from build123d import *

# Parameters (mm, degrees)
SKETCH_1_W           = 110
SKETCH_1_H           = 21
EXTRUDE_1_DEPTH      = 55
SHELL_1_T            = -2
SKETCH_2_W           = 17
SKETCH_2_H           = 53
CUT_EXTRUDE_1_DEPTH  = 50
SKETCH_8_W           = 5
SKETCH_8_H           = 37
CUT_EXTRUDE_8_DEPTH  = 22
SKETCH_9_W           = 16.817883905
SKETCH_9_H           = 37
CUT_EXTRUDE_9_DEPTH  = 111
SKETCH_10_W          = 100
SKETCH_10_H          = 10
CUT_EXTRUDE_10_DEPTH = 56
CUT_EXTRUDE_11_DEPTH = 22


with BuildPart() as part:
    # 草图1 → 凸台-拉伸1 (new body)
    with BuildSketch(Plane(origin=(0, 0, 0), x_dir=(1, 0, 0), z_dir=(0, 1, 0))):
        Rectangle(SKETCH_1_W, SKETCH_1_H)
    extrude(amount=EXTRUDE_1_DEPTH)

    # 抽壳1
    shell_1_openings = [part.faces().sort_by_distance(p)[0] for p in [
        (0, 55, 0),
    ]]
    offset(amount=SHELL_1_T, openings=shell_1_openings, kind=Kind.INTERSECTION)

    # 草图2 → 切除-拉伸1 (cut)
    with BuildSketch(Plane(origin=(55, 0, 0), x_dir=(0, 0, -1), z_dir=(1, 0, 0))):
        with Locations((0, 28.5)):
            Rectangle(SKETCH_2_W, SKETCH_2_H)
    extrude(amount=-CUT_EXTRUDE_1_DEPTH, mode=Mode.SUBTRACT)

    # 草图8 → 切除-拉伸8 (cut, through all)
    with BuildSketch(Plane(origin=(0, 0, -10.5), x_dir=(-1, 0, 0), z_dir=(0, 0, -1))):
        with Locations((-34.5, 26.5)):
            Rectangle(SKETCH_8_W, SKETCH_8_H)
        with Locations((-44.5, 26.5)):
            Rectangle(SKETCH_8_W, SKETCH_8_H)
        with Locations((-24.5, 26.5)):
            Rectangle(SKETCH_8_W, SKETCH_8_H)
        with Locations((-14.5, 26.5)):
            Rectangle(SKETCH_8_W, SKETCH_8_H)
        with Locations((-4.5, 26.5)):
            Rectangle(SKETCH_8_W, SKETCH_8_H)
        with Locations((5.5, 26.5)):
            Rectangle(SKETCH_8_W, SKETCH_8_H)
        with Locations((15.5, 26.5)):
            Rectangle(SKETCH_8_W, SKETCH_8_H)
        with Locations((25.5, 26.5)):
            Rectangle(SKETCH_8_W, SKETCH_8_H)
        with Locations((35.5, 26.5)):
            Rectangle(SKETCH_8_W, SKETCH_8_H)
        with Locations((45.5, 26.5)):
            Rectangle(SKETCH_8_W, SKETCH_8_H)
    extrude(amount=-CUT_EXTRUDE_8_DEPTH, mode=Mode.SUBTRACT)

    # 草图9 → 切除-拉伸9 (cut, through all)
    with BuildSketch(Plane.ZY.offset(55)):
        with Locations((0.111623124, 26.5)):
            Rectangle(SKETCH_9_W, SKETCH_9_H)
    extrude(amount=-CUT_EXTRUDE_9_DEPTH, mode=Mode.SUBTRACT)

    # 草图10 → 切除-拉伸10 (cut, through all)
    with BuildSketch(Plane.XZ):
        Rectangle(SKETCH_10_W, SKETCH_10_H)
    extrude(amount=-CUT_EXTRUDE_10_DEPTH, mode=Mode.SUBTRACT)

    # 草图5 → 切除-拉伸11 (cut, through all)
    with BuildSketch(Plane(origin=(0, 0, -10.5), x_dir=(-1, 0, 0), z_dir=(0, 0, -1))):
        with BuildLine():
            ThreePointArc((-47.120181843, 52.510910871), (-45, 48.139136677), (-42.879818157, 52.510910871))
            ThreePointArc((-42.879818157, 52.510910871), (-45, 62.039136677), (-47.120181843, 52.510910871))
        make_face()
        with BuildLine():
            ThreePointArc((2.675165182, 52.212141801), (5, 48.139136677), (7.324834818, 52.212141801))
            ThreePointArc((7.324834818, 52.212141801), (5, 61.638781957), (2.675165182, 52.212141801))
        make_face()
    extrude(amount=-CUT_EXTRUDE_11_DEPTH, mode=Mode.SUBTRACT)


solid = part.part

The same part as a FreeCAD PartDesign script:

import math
import FreeCAD as App
import Part
import Sketcher


def faces_at(feature, points):
    """Names of the faces that lie closest to the given points."""
    faces = feature.Shape.Faces
    near = lambda p: min(range(len(faces)), key=lambda i: faces[i].distToShape(Part.Vertex(*p))[0])
    return sorted({f"Face{near(p) + 1}" for p in points})

doc = App.newDocument("Part")
params = doc.addObject("Spreadsheet::Sheet", "Params")
for row, (alias, value) in enumerate([
    ("sketch1_width", "110 mm"),
    ("sketch1_height", "21 mm"),
    ("pad1_length", "55 mm"),
    ("thickness_wall", "2 mm"),
    ("sketch2_width", "53 mm"),
    ("sketch2_height", "17 mm"),
    ("pocket1_length", "50 mm"),
    ("sketch3_width", "5 mm"),
    ("sketch3_height", "37 mm"),
    ("sketch4_width", "37 mm"),
    ("sketch5_width", "100 mm"),
    ("sketch5_height", "10 mm"),
    ("sketch6_radius", "5 mm"),
    ("sketch6_radius2", "2.7 mm"),
], start=1):
    params.set(f"A{row}", alias)
    params.set(f"B{row}", "=" + value)
    params.setAlias(f"B{row}", alias)

body = doc.addObject("PartDesign::Body", "Body")

sketch1 = body.newObject("Sketcher::SketchObject", "Sketch")
sketch1.AttachmentSupport = (doc.getObject("XZ_Plane"), [""])
sketch1.MapMode = "FlatFace"
sketch1.addGeometry([
    Part.LineSegment(App.Vector(-55, -10, 0), App.Vector(-55, 10, 0)),
    Part.LineSegment(App.Vector(-55, 10, 0), App.Vector(55, 10, 0)),
    Part.LineSegment(App.Vector(55, 10, 0), App.Vector(55, -10, 0)),
    Part.LineSegment(App.Vector(55, -10, 0), App.Vector(-55, -10, 0)),
], False)
sketch1.addConstraint([
    Sketcher.Constraint("Coincident", 0, 2, 1, 1),
    Sketcher.Constraint("Coincident", 1, 2, 2, 1),
    Sketcher.Constraint("Coincident", 2, 2, 3, 1),
    Sketcher.Constraint("Coincident", 3, 2, 0, 1),
    Sketcher.Constraint("Vertical", 0),
    Sketcher.Constraint("Horizontal", 1),
    Sketcher.Constraint("Vertical", 2),
    Sketcher.Constraint("Horizontal", 3),
    Sketcher.Constraint("Symmetric", 0, 2, 2, 2, -1, 1),
    Sketcher.Constraint("DistanceX", 1, 1, 1, 2, 110.0),
    Sketcher.Constraint("DistanceY", 0, 1, 0, 2, 21.0),
])
sketch1.setExpression("Constraints[9]", "Params.sketch1_width")
sketch1.setExpression("Constraints[10]", "Params.sketch1_height")
pad1 = body.newObject("PartDesign::Pad", "Pad")
pad1.Profile = sketch1
pad1.setExpression("Length", "Params.pad1_length")
pad1.Reversed = True
doc.recompute()

thickness = body.newObject("PartDesign::Thickness", "Thickness")
thickness.Base = (pad1, faces_at(pad1, [(0, 55, 0)]))
thickness.setExpression("Value", "Params.thickness_wall")
thickness.Reversed = True
thickness.Join = "Intersection"

sketch2 = body.newObject("Sketcher::SketchObject", "Sketch001")
sketch2.AttachmentSupport = (doc.getObject("YZ_Plane"), [""])
sketch2.MapMode = "FlatFace"
sketch2.AttachmentOffset = App.Placement(App.Vector(0, 0, 55), App.Rotation())
sketch2.addGeometry([
    Part.LineSegment(App.Vector(55, 8, 0), App.Vector(2, 8, 0)),
    Part.LineSegment(App.Vector(2, 8, 0), App.Vector(2, -8, 0)),
    Part.LineSegment(App.Vector(2, -8, 0), App.Vector(55, -8, 0)),
    Part.LineSegment(App.Vector(55, -8, 0), App.Vector(55, 8, 0)),
], False)
sketch2.addConstraint([
    Sketcher.Constraint("Coincident", 0, 2, 1, 1),
    Sketcher.Constraint("Coincident", 1, 2, 2, 1),
    Sketcher.Constraint("Coincident", 2, 2, 3, 1),
    Sketcher.Constraint("Coincident", 3, 2, 0, 1),
    Sketcher.Constraint("Horizontal", 0),
    Sketcher.Constraint("Vertical", 1),
    Sketcher.Constraint("Horizontal", 2),
    Sketcher.Constraint("Vertical", 3),
    Sketcher.Constraint("DistanceX", 0, 2, 0, 1, 53.0),
    Sketcher.Constraint("DistanceY", 1, 2, 1, 1, 17.0),
    Sketcher.Constraint("DistanceX", -1, 1, 0, 2, 2.0),
    Sketcher.Constraint("DistanceY", -1, 1, 0, 2, 8.5),
])
sketch2.setExpression("Constraints[8]", "Params.sketch2_width")
sketch2.setExpression("Constraints[9]", "Params.sketch2_height")
pocket1 = body.newObject("PartDesign::Pocket", "Pocket")
pocket1.Profile = sketch2
pocket1.setExpression("Length", "Params.pocket1_length")

sketch3 = body.newObject("Sketcher::SketchObject", "Sketch002")
sketch3.AttachmentSupport = (doc.getObject("XY_Plane"), [""])
sketch3.MapMode = "FlatFace"
sketch3.AttachmentOffset = App.Placement(App.Vector(0, 0, -10.5), App.Rotation())
sketch3.addGeometry([
    Part.LineSegment(App.Vector(37, 45, 0), App.Vector(37, 8, 0)),
    Part.LineSegment(App.Vector(37, 8, 0), App.Vector(32, 8, 0)),
    Part.LineSegment(App.Vector(32, 8, 0), App.Vector(32, 45, 0)),
    Part.LineSegment(App.Vector(32, 45, 0), App.Vector(37, 45, 0)),
    Part.LineSegment(App.Vector(47, 45, 0), App.Vector(47, 8, 0)),
    Part.LineSegment(App.Vector(47, 8, 0), App.Vector(42, 8, 0)),
    Part.LineSegment(App.Vector(42, 8, 0), App.Vector(42, 45, 0)),
    Part.LineSegment(App.Vector(42, 45, 0), App.Vector(47, 45, 0)),
    Part.LineSegment(App.Vector(27, 45, 0), App.Vector(27, 8, 0)),
    Part.LineSegment(App.Vector(27, 8, 0), App.Vector(22, 8, 0)),
    Part.LineSegment(App.Vector(22, 8, 0), App.Vector(22, 45, 0)),
    Part.LineSegment(App.Vector(22, 45, 0), App.Vector(27, 45, 0)),
    Part.LineSegment(App.Vector(17, 45, 0), App.Vector(17, 8, 0)),
    Part.LineSegment(App.Vector(17, 8, 0), App.Vector(12, 8, 0)),
    Part.LineSegment(App.Vector(12, 8, 0), App.Vector(12, 45, 0)),
    Part.LineSegment(App.Vector(12, 45, 0), App.Vector(17, 45, 0)),
    Part.LineSegment(App.Vector(7, 45, 0), App.Vector(7, 8, 0)),
    Part.LineSegment(App.Vector(7, 8, 0), App.Vector(2, 8, 0)),
    Part.LineSegment(App.Vector(2, 8, 0), App.Vector(2, 45, 0)),
    Part.LineSegment(App.Vector(2, 45, 0), App.Vector(7, 45, 0)),
    Part.LineSegment(App.Vector(-3, 45, 0), App.Vector(-3, 8, 0)),
    Part.LineSegment(App.Vector(-3, 8, 0), App.Vector(-8, 8, 0)),
    Part.LineSegment(App.Vector(-8, 8, 0), App.Vector(-8, 45, 0)),
    Part.LineSegment(App.Vector(-8, 45, 0), App.Vector(-3, 45, 0)),
    Part.LineSegment(App.Vector(-13, 45, 0), App.Vector(-13, 8, 0)),
    Part.LineSegment(App.Vector(-13, 8, 0), App.Vector(-18, 8, 0)),
    Part.LineSegment(App.Vector(-18, 8, 0), App.Vector(-18, 45, 0)),
    Part.LineSegment(App.Vector(-18, 45, 0), App.Vector(-13, 45, 0)),
    Part.LineSegment(App.Vector(-23, 45, 0), App.Vector(-23, 8, 0)),
    Part.LineSegment(App.Vector(-23, 8, 0), App.Vector(-28, 8, 0)),
    Part.LineSegment(App.Vector(-28, 8, 0), App.Vector(-28, 45, 0)),
    Part.LineSegment(App.Vector(-28, 45, 0), App.Vector(-23, 45, 0)),
    Part.LineSegment(App.Vector(-33, 45, 0), App.Vector(-33, 8, 0)),
    Part.LineSegment(App.Vector(-33, 8, 0), App.Vector(-38, 8, 0)),
    Part.LineSegment(App.Vector(-38, 8, 0), App.Vector(-38, 45, 0)),
    Part.LineSegment(App.Vector(-38, 45, 0), App.Vector(-33, 45, 0)),
    Part.LineSegment(App.Vector(-43, 45, 0), App.Vector(-43, 8, 0)),
    Part.LineSegment(App.Vector(-43, 8, 0), App.Vector(-48, 8, 0)),
    Part.LineSegment(App.Vector(-48, 8, 0), App.Vector(-48, 45, 0)),
    Part.LineSegment(App.Vector(-48, 45, 0), App.Vector(-43, 45, 0)),
], False)
sketch3.addConstraint([
    Sketcher.Constraint("Coincident", 0, 2, 1, 1),
    Sketcher.Constraint("Coincident", 1, 2, 2, 1),
    Sketcher.Constraint("Coincident", 2, 2, 3, 1),
    Sketcher.Constraint("Coincident", 3, 2, 0, 1),
    Sketcher.Constraint("Coincident", 4, 2, 5, 1),
    Sketcher.Constraint("Coincident", 5, 2, 6, 1),
    Sketcher.Constraint("Coincident", 6, 2, 7, 1),
    Sketcher.Constraint("Coincident", 7, 2, 4, 1),
    Sketcher.Constraint("Coincident", 8, 2, 9, 1),
    Sketcher.Constraint("Coincident", 9, 2, 10, 1),
    Sketcher.Constraint("Coincident", 10, 2, 11, 1),
    Sketcher.Constraint("Coincident", 11, 2, 8, 1),
    Sketcher.Constraint("Coincident", 12, 2, 13, 1),
    Sketcher.Constraint("Coincident", 13, 2, 14, 1),
    Sketcher.Constraint("Coincident", 14, 2, 15, 1),
    Sketcher.Constraint("Coincident", 15, 2, 12, 1),
    Sketcher.Constraint("Coincident", 16, 2, 17, 1),
    Sketcher.Constraint("Coincident", 17, 2, 18, 1),
    Sketcher.Constraint("Coincident", 18, 2, 19, 1),
    Sketcher.Constraint("Coincident", 19, 2, 16, 1),
    Sketcher.Constraint("Coincident", 20, 2, 21, 1),
    Sketcher.Constraint("Coincident", 21, 2, 22, 1),
    Sketcher.Constraint("Coincident", 22, 2, 23, 1),
    Sketcher.Constraint("Coincident", 23, 2, 20, 1),
    Sketcher.Constraint("Coincident", 24, 2, 25, 1),
    Sketcher.Constraint("Coincident", 25, 2, 26, 1),
    Sketcher.Constraint("Coincident", 26, 2, 27, 1),
    Sketcher.Constraint("Coincident", 27, 2, 24, 1),
    Sketcher.Constraint("Coincident", 28, 2, 29, 1),
    Sketcher.Constraint("Coincident", 29, 2, 30, 1),
    Sketcher.Constraint("Coincident", 30, 2, 31, 1),
    Sketcher.Constraint("Coincident", 31, 2, 28, 1),
    Sketcher.Constraint("Coincident", 32, 2, 33, 1),
    Sketcher.Constraint("Coincident", 33, 2, 34, 1),
    Sketcher.Constraint("Coincident", 34, 2, 35, 1),
    Sketcher.Constraint("Coincident", 35, 2, 32, 1),
    Sketcher.Constraint("Coincident", 36, 2, 37, 1),
    Sketcher.Constraint("Coincident", 37, 2, 38, 1),
    Sketcher.Constraint("Coincident", 38, 2, 39, 1),
    Sketcher.Constraint("Coincident", 39, 2, 36, 1),
    Sketcher.Constraint("Vertical", 0),
    Sketcher.Constraint("Horizontal", 1),
    Sketcher.Constraint("Vertical", 2),
    Sketcher.Constraint("Horizontal", 3),
    Sketcher.Constraint("Vertical", 4),
    Sketcher.Constraint("Horizontal", 5),
    Sketcher.Constraint("Vertical", 6),
    Sketcher.Constraint("Horizontal", 7),
    Sketcher.Constraint("Vertical", 8),
    Sketcher.Constraint("Horizontal", 9),
    Sketcher.Constraint("Vertical", 10),
    Sketcher.Constraint("Horizontal", 11),
    Sketcher.Constraint("Vertical", 12),
    Sketcher.Constraint("Horizontal", 13),
    Sketcher.Constraint("Vertical", 14),
    Sketcher.Constraint("Horizontal", 15),
    Sketcher.Constraint("Vertical", 16),
    Sketcher.Constraint("Horizontal", 17),
    Sketcher.Constraint("Vertical", 18),
    Sketcher.Constraint("Horizontal", 19),
    Sketcher.Constraint("Vertical", 20),
    Sketcher.Constraint("Horizontal", 21),
    Sketcher.Constraint("Vertical", 22),
    Sketcher.Constraint("Horizontal", 23),
    Sketcher.Constraint("Vertical", 24),
    Sketcher.Constraint("Horizontal", 25),
    Sketcher.Constraint("Vertical", 26),
    Sketcher.Constraint("Horizontal", 27),
    Sketcher.Constraint("Vertical", 28),
    Sketcher.Constraint("Horizontal", 29),
    Sketcher.Constraint("Vertical", 30),
    Sketcher.Constraint("Horizontal", 31),
    Sketcher.Constraint("Vertical", 32),
    Sketcher.Constraint("Horizontal", 33),
    Sketcher.Constraint("Vertical", 34),
    Sketcher.Constraint("Horizontal", 35),
    Sketcher.Constraint("Vertical", 36),
    Sketcher.Constraint("Horizontal", 37),
    Sketcher.Constraint("Vertical", 38),
    Sketcher.Constraint("Horizontal", 39),
    Sketcher.Constraint("Horizontal", 1, 2, 4, 2),
    Sketcher.Constraint("Horizontal", 3, 2, 6, 2),
    Sketcher.Constraint("Horizontal", 5, 2, 8, 2),
    Sketcher.Constraint("Horizontal", 7, 2, 10, 2),
    Sketcher.Constraint("Horizontal", 9, 2, 12, 2),
    Sketcher.Constraint("Horizontal", 11, 2, 14, 2),
    Sketcher.Constraint("Horizontal", 13, 2, 16, 2),
    Sketcher.Constraint("Horizontal", 15, 2, 18, 2),
    Sketcher.Constraint("Horizontal", 17, 2, 20, 2),
    Sketcher.Constraint("Horizontal", 19, 2, 22, 2),
    Sketcher.Constraint("Horizontal", 21, 2, 24, 2),
    Sketcher.Constraint("Horizontal", 23, 2, 26, 2),
    Sketcher.Constraint("Horizontal", 25, 2, 28, 2),
    Sketcher.Constraint("Horizontal", 27, 2, 30, 2),
    Sketcher.Constraint("Horizontal", 29, 2, 32, 2),
    Sketcher.Constraint("Horizontal", 31, 2, 34, 2),
    Sketcher.Constraint("Horizontal", 33, 2, 36, 2),
    Sketcher.Constraint("Horizontal", 35, 2, 38, 2),
    Sketcher.Constraint("Equal", 3, 5),
    Sketcher.Constraint("Equal", 7, 9),
    Sketcher.Constraint("Equal", 11, 13),
    Sketcher.Constraint("Equal", 15, 17),
    Sketcher.Constraint("Equal", 19, 21),
    Sketcher.Constraint("Equal", 23, 25),
    Sketcher.Constraint("Equal", 27, 29),
    Sketcher.Constraint("Equal", 31, 33),
    Sketcher.Constraint("Equal", 35, 37),
    Sketcher.Constraint("DistanceX", 1, 2, 1, 1, 5.0),
    Sketcher.Constraint("DistanceY", 0, 2, 0, 1, 37.0),
    Sketcher.Constraint("DistanceX", -1, 1, 0, 2, 37.0),
    Sketcher.Constraint("DistanceY", -1, 1, 0, 2, 8.0),
    Sketcher.Constraint("DistanceX", -1, 1, 4, 2, 47.0),
    Sketcher.Constraint("DistanceX", -1, 1, 8, 2, 27.0),
    Sketcher.Constraint("DistanceX", -1, 1, 12, 2, 17.0),
    Sketcher.Constraint("DistanceX", -1, 1, 16, 2, 7.0),
    Sketcher.Constraint("DistanceX", 20, 2, -1, 1, 3.0),
    Sketcher.Constraint("DistanceX", 24, 2, -1, 1, 13.0),
    Sketcher.Constraint("DistanceX", 28, 2, -1, 1, 23.0),
    Sketcher.Constraint("DistanceX", 32, 2, -1, 1, 33.0),
    Sketcher.Constraint("DistanceX", 36, 2, -1, 1, 43.0),
])
sketch3.setExpression("Constraints[107]", "Params.sketch3_width")
sketch3.setExpression("Constraints[108]", "Params.sketch3_height")
pocket2 = body.newObject("PartDesign::Pocket", "Pocket001")
pocket2.Profile = sketch3
pocket2.Type = "ThroughAll"
pocket2.Reversed = True

sketch4 = body.newObject("Sketcher::SketchObject", "Sketch003")
sketch4.AttachmentSupport = (doc.getObject("YZ_Plane"), [""])
sketch4.MapMode = "FlatFace"
sketch4.AttachmentOffset = App.Placement(App.Vector(0, 0, -55), App.Rotation())
sketch4.addGeometry([
    Part.LineSegment(App.Vector(45, -8, 0), App.Vector(8, -8, 0)),
    Part.LineSegment(App.Vector(8, -8, 0), App.Vector(8, 9, 0)),
    Part.LineSegment(App.Vector(8, 9, 0), App.Vector(45, 9, 0)),
    Part.LineSegment(App.Vector(45, 9, 0), App.Vector(45, -8, 0)),
], False)
sketch4.addConstraint([
    Sketcher.Constraint("Coincident", 0, 2, 1, 1),
    Sketcher.Constraint("Coincident", 1, 2, 2, 1),
    Sketcher.Constraint("Coincident", 2, 2, 3, 1),
    Sketcher.Constraint("Coincident", 3, 2, 0, 1),
    Sketcher.Constraint("Horizontal", 0),
    Sketcher.Constraint("Vertical", 1),
    Sketcher.Constraint("Horizontal", 2),
    Sketcher.Constraint("Vertical", 3),
    Sketcher.Constraint("DistanceX", 0, 2, 0, 1, 37.0),
    Sketcher.Constraint("DistanceX", -1, 1, 0, 2, 8.0),
    Sketcher.Constraint("DistanceY", 1, 1, 1, 2, 16.817884),
    Sketcher.Constraint("DistanceY", 0, 2, -1, 1, 8.297319),
])
sketch4.setExpression("Constraints[8]", "Params.sketch4_width")
pocket3 = body.newObject("PartDesign::Pocket", "Pocket002")
pocket3.Profile = sketch4
pocket3.Type = "ThroughAll"
pocket3.Reversed = True

sketch5 = body.newObject("Sketcher::SketchObject", "Sketch004")
sketch5.AttachmentSupport = (doc.getObject("XZ_Plane"), [""])
sketch5.MapMode = "FlatFace"
sketch5.addGeometry([
    Part.LineSegment(App.Vector(-50, 5, 0), App.Vector(-50, -5, 0)),
    Part.LineSegment(App.Vector(-50, -5, 0), App.Vector(50, -5, 0)),
    Part.LineSegment(App.Vector(50, -5, 0), App.Vector(50, 5, 0)),
    Part.LineSegment(App.Vector(50, 5, 0), App.Vector(-50, 5, 0)),
], False)
sketch5.addConstraint([
    Sketcher.Constraint("Coincident", 0, 2, 1, 1),
    Sketcher.Constraint("Coincident", 1, 2, 2, 1),
    Sketcher.Constraint("Coincident", 2, 2, 3, 1),
    Sketcher.Constraint("Coincident", 3, 2, 0, 1),
    Sketcher.Constraint("Vertical", 0),
    Sketcher.Constraint("Horizontal", 1),
    Sketcher.Constraint("Vertical", 2),
    Sketcher.Constraint("Horizontal", 3),
    Sketcher.Constraint("Symmetric", 0, 2, 2, 2, -1, 1),
    Sketcher.Constraint("DistanceX", 1, 1, 1, 2, 100.0),
    Sketcher.Constraint("DistanceY", 0, 2, 0, 1, 10.0),
])
sketch5.setExpression("Constraints[9]", "Params.sketch5_width")
sketch5.setExpression("Constraints[10]", "Params.sketch5_height")
pocket4 = body.newObject("PartDesign::Pocket", "Pocket003")
pocket4.Profile = sketch5
pocket4.Type = "ThroughAll"

sketch6 = body.newObject("Sketcher::SketchObject", "Sketch005")
sketch6.AttachmentSupport = (doc.getObject("XY_Plane"), [""])
sketch6.MapMode = "FlatFace"
sketch6.AttachmentOffset = App.Placement(App.Vector(0, 0, -10.5), App.Rotation())
sketch6.addGeometry([
    Part.ArcOfCircle(Part.Circle(App.Vector(45, 50.8, 0), App.Vector(0, 0, 1), 2.7), math.radians(142), math.radians(398)),
    Part.ArcOfCircle(Part.Circle(App.Vector(45, 57, 0), App.Vector(0, 0, 1), 5), math.radians(-65), math.radians(245)),
    Part.ArcOfCircle(Part.Circle(App.Vector(-5, 50.8, 0), App.Vector(0, 0, 1), 2.7), math.radians(149), math.radians(391)),
    Part.ArcOfCircle(Part.Circle(App.Vector(-5, 56.6, 0), App.Vector(0, 0, 1), 5), math.radians(-62), math.radians(242)),
], False)
sketch6.addConstraint([
    Sketcher.Constraint("Coincident", 0, 1, 1, 2),
    Sketcher.Constraint("Coincident", 1, 1, 0, 2),
    Sketcher.Constraint("Coincident", 2, 1, 3, 2),
    Sketcher.Constraint("Coincident", 3, 1, 2, 2),
    Sketcher.Constraint("Equal", 0, 2),
    Sketcher.Constraint("Equal", 1, 3),
    Sketcher.Constraint("Horizontal", 0, 3, 2, 3),
    Sketcher.Constraint("Horizontal", 0, 1, 1, 1),
    Sketcher.Constraint("Horizontal", 2, 1, 3, 1),
    Sketcher.Constraint("Radius", 1, 5.0),
    Sketcher.Constraint("Radius", 0, 2.7),
    Sketcher.Constraint("DistanceX", -1, 1, 0, 3, 45.0),
    Sketcher.Constraint("DistanceX", 2, 3, -1, 1, 5.0),
    Sketcher.Constraint("DistanceY", 0, 3, 1, 3, 6.2),
    Sketcher.Constraint("DistanceY", -1, 1, 3, 3, 56.638782),
    Sketcher.Constraint("DistanceY", -1, 1, 0, 1, 52.510911),
])
sketch6.setExpression("Constraints[9]", "Params.sketch6_radius")
sketch6.setExpression("Constraints[10]", "Params.sketch6_radius2")
pocket5 = body.newObject("PartDesign::Pocket", "Pocket004")
pocket5.Profile = sketch6
pocket5.Type = "ThroughAll"
pocket5.Reversed = True

doc.recompute()
